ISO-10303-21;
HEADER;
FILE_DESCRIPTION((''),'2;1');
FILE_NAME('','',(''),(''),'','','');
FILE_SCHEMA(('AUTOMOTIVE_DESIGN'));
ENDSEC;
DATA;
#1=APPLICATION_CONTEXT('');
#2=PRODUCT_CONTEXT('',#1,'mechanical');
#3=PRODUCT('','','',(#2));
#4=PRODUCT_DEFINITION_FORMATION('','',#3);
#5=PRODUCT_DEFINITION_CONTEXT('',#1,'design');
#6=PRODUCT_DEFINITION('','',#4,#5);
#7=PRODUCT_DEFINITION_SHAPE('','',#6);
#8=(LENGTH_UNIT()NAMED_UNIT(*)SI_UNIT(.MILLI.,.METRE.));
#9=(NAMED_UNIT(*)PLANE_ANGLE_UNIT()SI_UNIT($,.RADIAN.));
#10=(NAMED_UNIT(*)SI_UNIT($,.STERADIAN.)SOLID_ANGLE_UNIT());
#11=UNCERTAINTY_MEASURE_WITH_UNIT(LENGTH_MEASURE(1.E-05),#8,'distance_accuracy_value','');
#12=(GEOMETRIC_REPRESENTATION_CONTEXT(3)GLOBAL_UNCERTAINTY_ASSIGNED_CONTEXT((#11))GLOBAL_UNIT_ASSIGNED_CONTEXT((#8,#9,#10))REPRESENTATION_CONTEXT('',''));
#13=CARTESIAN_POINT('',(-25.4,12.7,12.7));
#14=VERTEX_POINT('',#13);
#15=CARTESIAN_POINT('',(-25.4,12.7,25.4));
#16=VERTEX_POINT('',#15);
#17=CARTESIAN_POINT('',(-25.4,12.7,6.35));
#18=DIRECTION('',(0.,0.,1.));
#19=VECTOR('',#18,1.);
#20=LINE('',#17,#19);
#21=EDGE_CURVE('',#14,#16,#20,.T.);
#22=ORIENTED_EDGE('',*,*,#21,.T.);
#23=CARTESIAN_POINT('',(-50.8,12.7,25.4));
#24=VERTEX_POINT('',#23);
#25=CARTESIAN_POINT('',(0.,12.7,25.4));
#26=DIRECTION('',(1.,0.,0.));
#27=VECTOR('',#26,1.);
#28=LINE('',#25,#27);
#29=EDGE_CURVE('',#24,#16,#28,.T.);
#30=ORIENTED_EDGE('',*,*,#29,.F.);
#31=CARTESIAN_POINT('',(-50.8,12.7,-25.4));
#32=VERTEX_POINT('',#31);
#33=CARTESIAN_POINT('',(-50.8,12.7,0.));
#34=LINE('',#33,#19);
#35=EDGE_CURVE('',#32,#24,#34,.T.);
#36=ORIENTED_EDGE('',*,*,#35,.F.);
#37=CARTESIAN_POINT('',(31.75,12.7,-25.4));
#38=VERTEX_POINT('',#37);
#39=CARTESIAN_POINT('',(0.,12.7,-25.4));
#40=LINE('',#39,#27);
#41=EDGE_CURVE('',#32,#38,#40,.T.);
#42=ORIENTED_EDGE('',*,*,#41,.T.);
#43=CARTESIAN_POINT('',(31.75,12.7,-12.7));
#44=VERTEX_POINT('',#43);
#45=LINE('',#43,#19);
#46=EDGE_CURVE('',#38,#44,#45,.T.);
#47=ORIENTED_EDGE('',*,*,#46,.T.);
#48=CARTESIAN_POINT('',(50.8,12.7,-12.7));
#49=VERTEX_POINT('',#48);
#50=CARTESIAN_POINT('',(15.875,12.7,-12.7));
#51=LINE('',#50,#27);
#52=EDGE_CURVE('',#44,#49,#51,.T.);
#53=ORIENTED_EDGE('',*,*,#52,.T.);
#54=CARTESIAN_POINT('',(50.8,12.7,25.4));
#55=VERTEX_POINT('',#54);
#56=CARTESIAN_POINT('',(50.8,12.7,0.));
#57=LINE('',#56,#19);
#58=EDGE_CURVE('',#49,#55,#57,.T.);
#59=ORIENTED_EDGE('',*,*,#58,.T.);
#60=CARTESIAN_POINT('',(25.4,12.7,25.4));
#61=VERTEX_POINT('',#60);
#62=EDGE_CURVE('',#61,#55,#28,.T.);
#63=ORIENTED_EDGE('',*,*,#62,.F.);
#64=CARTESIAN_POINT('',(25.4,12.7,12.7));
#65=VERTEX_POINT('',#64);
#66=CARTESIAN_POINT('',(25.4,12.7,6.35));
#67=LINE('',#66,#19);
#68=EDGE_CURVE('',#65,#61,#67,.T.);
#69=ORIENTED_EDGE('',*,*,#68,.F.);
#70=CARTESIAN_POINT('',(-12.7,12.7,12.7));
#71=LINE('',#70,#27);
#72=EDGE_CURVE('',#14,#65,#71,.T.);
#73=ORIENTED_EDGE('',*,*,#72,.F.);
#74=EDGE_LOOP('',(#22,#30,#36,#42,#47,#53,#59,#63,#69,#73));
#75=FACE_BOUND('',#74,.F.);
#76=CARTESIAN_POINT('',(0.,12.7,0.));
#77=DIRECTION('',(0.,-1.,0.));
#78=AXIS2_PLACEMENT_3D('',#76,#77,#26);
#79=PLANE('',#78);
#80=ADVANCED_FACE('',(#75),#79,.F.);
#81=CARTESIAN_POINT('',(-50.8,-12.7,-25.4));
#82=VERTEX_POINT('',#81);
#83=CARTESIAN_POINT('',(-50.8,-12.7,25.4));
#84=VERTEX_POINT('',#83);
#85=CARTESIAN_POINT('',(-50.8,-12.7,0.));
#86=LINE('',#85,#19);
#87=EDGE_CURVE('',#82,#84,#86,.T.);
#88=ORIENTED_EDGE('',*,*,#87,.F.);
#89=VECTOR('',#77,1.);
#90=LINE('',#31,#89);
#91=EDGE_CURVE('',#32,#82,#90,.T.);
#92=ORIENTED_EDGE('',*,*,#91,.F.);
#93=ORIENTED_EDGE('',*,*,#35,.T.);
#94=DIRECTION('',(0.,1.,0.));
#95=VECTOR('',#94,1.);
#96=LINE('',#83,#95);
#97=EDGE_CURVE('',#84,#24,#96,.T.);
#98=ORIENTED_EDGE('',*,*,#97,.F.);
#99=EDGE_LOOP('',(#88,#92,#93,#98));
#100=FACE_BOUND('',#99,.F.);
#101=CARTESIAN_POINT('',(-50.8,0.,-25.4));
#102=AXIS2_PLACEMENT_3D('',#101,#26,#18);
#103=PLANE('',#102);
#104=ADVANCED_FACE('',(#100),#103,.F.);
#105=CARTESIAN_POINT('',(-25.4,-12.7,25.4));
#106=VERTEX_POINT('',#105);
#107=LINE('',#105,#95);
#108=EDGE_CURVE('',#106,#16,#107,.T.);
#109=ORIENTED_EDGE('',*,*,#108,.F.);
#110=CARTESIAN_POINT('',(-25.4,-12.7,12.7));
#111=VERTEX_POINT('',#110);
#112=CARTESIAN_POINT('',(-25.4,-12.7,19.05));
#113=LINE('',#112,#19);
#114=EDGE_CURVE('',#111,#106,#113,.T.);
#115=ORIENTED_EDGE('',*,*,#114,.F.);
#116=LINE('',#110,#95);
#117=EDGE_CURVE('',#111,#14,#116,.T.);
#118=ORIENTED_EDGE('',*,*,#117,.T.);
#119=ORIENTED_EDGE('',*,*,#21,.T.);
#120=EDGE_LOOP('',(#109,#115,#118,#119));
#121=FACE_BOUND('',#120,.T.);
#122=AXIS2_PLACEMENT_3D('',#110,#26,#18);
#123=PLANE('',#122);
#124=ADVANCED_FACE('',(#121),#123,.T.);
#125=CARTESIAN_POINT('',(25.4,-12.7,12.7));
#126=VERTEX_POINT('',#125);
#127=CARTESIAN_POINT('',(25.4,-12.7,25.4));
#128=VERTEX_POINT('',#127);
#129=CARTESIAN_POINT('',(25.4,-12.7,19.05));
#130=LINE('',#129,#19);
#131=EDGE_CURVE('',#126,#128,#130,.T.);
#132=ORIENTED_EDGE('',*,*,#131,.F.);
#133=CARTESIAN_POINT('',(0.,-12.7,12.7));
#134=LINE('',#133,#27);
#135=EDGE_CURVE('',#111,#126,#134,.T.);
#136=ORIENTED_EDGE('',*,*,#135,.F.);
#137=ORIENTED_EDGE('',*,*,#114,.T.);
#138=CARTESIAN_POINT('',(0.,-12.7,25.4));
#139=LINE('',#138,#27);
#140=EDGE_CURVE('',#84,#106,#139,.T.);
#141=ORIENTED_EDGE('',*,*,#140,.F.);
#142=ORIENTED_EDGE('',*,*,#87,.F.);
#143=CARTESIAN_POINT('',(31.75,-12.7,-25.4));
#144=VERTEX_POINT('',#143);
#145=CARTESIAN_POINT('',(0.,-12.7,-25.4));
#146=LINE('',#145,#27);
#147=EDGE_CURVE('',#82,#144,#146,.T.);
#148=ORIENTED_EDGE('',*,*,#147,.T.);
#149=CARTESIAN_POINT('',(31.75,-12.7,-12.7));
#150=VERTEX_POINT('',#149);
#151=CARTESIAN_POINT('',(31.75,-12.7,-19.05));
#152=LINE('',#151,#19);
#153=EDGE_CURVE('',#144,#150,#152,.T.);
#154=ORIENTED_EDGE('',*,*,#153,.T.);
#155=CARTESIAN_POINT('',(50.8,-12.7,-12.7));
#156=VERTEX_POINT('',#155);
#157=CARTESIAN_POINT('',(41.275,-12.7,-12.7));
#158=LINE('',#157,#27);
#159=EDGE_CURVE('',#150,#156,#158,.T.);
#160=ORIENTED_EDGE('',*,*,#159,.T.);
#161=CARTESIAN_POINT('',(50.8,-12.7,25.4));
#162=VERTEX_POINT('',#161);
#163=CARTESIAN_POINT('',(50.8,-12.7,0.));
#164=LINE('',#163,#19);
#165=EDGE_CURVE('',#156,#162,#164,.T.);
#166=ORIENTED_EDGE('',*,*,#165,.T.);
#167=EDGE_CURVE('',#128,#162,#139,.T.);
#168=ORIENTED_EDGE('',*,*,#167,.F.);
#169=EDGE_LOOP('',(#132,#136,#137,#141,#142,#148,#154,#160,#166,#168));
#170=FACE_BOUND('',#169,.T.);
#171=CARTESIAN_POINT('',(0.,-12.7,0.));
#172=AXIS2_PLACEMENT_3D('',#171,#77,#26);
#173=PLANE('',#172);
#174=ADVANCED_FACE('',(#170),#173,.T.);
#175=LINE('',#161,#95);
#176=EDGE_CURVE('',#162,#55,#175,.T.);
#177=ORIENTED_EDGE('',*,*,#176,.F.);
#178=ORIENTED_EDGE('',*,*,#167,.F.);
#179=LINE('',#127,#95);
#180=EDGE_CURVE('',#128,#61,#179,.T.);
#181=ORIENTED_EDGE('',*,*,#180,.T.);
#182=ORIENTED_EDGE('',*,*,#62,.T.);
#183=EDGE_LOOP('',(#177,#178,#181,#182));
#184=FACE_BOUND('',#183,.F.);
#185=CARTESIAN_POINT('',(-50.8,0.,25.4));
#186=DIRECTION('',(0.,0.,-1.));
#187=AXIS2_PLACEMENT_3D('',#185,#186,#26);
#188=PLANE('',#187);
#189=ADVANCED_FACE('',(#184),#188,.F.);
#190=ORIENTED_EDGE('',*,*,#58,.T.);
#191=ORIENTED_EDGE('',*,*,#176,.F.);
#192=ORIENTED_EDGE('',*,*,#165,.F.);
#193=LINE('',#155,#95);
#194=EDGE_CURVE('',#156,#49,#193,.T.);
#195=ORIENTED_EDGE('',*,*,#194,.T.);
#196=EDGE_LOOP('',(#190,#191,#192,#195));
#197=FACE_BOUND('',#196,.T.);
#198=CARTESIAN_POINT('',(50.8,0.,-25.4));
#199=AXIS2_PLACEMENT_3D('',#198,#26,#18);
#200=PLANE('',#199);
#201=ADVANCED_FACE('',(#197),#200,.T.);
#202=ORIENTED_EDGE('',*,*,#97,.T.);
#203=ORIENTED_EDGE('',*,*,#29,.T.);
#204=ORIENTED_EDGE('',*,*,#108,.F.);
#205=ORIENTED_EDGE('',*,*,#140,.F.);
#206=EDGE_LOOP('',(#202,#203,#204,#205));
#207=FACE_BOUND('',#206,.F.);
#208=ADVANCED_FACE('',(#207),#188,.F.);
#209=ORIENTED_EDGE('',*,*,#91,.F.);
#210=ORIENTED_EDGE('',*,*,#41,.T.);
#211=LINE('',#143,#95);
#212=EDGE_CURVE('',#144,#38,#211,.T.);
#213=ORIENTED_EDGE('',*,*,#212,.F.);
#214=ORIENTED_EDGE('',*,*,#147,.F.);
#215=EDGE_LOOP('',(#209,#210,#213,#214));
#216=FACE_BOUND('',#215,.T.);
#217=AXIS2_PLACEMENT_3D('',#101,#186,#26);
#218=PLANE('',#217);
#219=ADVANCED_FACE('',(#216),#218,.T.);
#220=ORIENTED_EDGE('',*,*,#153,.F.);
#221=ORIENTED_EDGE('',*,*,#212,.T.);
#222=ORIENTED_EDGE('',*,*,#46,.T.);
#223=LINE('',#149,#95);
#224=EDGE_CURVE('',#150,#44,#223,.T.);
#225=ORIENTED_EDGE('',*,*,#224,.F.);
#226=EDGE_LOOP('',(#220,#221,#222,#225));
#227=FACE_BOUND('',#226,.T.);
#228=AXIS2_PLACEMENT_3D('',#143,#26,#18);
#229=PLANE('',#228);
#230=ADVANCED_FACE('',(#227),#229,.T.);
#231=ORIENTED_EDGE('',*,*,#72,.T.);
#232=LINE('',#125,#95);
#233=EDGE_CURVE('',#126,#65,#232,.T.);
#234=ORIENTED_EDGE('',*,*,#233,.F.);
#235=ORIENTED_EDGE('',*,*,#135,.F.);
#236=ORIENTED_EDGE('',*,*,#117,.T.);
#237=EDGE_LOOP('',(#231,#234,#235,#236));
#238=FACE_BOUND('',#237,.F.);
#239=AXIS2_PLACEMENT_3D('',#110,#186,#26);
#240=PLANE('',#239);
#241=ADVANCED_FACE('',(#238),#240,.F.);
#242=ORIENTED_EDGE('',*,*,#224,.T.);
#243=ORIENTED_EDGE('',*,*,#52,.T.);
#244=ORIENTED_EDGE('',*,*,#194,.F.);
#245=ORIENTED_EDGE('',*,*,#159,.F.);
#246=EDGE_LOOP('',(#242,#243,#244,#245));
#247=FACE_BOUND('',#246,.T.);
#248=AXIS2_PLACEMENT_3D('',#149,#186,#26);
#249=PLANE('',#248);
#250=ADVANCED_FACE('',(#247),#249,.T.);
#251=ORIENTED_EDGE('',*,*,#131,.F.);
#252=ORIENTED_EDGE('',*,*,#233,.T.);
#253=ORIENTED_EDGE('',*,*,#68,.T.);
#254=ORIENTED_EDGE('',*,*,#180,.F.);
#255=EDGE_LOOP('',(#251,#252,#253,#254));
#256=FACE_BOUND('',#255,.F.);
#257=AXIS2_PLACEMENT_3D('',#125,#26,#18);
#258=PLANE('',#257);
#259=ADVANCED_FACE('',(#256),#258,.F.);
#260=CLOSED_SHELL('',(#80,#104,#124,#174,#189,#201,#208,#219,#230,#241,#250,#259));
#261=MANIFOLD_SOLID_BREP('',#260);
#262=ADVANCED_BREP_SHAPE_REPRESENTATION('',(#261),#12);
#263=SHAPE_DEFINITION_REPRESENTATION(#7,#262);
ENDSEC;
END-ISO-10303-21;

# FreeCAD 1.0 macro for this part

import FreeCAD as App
import Part
import Sketcher

V = App.Vector
Q = App.Units.Quantity

doc = App.newDocument("Part")
body = doc.addObject("PartDesign::Body", "Body")

# Sketch on XZ plane
sketch1 = body.newObject("Sketcher::SketchObject", "Sketch")
sketch1.AttachmentSupport = (doc.getObject("XZ_Plane"), [""])
sketch1.MapMode = "FlatFace"
sketch1.addGeometry([
    Part.LineSegment(V(-51, 25, 0), V(-51, -25, 0)),
    Part.LineSegment(V(-51, -25, 0), V(51, -25, 0)),
    Part.LineSegment(V(51, -25, 0), V(51, 25, 0)),
    Part.LineSegment(V(51, 25, 0), V(-51, 25, 0)),
], False)
sketch1.addConstraint([
    Sketcher.Constraint("Coincident", 0, 2, 1, 1),
    Sketcher.Constraint("Coincident", 1, 2, 2, 1),
    Sketcher.Constraint("Coincident", 2, 2, 3, 1),
    Sketcher.Constraint("Coincident", 3, 2, 0, 1),
    Sketcher.Constraint("Vertical", 0),
    Sketcher.Constraint("Horizontal", 1),
    Sketcher.Constraint("Vertical", 2),
    Sketcher.Constraint("Horizontal", 3),
    Sketcher.Constraint("Symmetric", 0, 2, 2, 2, -1, 1),
    Sketcher.Constraint("DistanceX", 1, 1, 1, 2, Q("4 in")),
    Sketcher.Constraint("DistanceY", 0, 2, 0, 1, Q("2 in")),
])
pad1 = body.newObject("PartDesign::Pad", "Pad")
pad1.Profile = sketch1
pad1.Length = Q("1 in")
pad1.Midplane = True

# Sketch on XZ plane
sketch2 = body.newObject("Sketcher::SketchObject", "Sketch001")
sketch2.AttachmentSupport = (doc.getObject("XZ_Plane"), [""])
sketch2.MapMode = "FlatFace"
sketch2.AttachmentOffset = App.Placement(V(0, 0, 0.5 * 25.4), App.Rotation())
sketch2.addGeometry([
    Part.LineSegment(V(32, -13, 0), V(32, -25, 0)),
    Part.LineSegment(V(32, -25, 0), V(51, -25, 0)),
    Part.LineSegment(V(51, -25, 0), V(51, -13, 0)),
    Part.LineSegment(V(51, -13, 0), V(32, -13, 0)),
], False)
sketch2.addConstraint([
    Sketcher.Constraint("Coincident", 0, 2, 1, 1),
    Sketcher.Constraint("Coincident", 1, 2, 2, 1),
    Sketcher.Constraint("Coincident", 2, 2, 3, 1),
    Sketcher.Constraint("Coincident", 3, 2, 0, 1),
    Sketcher.Constraint("Vertical", 0),
    Sketcher.Constraint("Horizontal", 1),
    Sketcher.Constraint("Vertical", 2),
    Sketcher.Constraint("Horizontal", 3),
    Sketcher.Constraint("DistanceY", 0, 2, 0, 1, Q("0.5 in")),
    Sketcher.Constraint("DistanceY", 0, 2, -1, 1, Q("1 in")),
    Sketcher.Constraint("DistanceX", -1, 1, 1, 2, Q("2 in")),
    Sketcher.Constraint("DistanceX", 1, 1, 1, 2, Q("0.75 in")),
])
pocket1 = body.newObject("PartDesign::Pocket", "Pocket")
pocket1.Profile = sketch2
pocket1.Type = "ThroughAll"

# Sketch on XZ plane
sketch3 = body.newObject("Sketcher::SketchObject", "Sketch002")
sketch3.AttachmentSupport = (doc.getObject("XZ_Plane"), [""])
sketch3.MapMode = "FlatFace"
sketch3.AttachmentOffset = App.Placement(V(0, 0, 0.5 * 25.4), App.Rotation())
sketch3.addGeometry([
    Part.LineSegment(V(-25, 25, 0), V(-25, 13, 0)),
    Part.LineSegment(V(-25, 13, 0), V(25, 13, 0)),
    Part.LineSegment(V(25, 13, 0), V(25, 25, 0)),
    Part.LineSegment(V(25, 25, 0), V(-25, 25, 0)),
], False)
sketch3.addConstraint([
    Sketcher.Constraint("Coincident", 0, 2, 1, 1),
    Sketcher.Constraint("Coincident", 1, 2, 2, 1),
    Sketcher.Constraint("Coincident", 2, 2, 3, 1),
    Sketcher.Constraint("Coincident", 3, 2, 0, 1),
    Sketcher.Constraint("Vertical", 0),
    Sketcher.Constraint("Horizontal", 1),
    Sketcher.Constraint("Vertical", 2),
    Sketcher.Constraint("Horizontal", 3),
    Sketcher.Constraint("DistanceX", 1, 1, 1, 2, Q("2 in")),
    Sketcher.Constraint("DistanceY", 0, 2, 0, 1, Q("0.5 in")),
    Sketcher.Constraint("DistanceX", 0, 2, -1, 1, Q("1 in")),
    Sketcher.Constraint("DistanceY", -1, 1, 2, 2, Q("1 in")),
])
pocket2 = body.newObject("PartDesign::Pocket", "Pocket001")
pocket2.Profile = sketch3
pocket2.Type = "ThroughAll"

doc.recompute()
